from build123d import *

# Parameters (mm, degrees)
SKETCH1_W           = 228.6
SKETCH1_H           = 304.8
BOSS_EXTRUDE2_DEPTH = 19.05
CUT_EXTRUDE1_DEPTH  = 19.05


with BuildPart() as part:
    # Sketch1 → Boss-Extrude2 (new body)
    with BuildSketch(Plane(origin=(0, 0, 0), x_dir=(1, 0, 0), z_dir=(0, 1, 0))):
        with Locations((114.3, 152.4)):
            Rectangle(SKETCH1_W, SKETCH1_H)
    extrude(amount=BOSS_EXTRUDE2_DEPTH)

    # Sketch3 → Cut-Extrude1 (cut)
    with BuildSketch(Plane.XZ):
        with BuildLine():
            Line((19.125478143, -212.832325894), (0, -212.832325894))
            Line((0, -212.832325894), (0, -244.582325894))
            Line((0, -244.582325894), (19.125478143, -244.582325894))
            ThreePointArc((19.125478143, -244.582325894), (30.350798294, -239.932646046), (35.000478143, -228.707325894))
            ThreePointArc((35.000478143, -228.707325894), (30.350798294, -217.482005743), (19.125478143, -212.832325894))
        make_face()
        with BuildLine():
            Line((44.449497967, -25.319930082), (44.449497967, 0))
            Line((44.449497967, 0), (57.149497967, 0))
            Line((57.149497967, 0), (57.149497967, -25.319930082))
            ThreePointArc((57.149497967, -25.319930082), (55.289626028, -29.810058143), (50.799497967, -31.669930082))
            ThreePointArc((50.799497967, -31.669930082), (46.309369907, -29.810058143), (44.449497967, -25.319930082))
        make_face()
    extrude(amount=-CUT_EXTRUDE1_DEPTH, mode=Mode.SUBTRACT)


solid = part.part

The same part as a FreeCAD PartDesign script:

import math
import FreeCAD as App
import Part
import Sketcher
Q = App.Units.Quantity

doc = App.newDocument("Part")
body = doc.addObject("PartDesign::Body", "Body")

# Sketch on XZ plane
sketch1 = doc.addObject("Sketcher::SketchObject", "Sketch")
body.addObject(sketch1)
sketch1.AttachmentSupport = (doc.XZ_Plane, [""])
sketch1.MapMode = "FlatFace"
sketch1.addGeometry([
    Part.LineSegment(App.Vector(0, -304.8, 0), App.Vector(0, 0, 0)),
    Part.LineSegment(App.Vector(0, 0, 0), App.Vector(228.6, 0, 0)),
    Part.LineSegment(App.Vector(228.6, 0, 0), App.Vector(228.6, -304.8, 0)),
    Part.LineSegment(App.Vector(228.6, -304.8, 0), App.Vector(0, -304.8, 0)),
], False)
sketch1.addConstraint([
    Sketcher.Constraint("Coincident", 0, 2, 1, 1),
    Sketcher.Constraint("Coincident", 1, 2, 2, 1),
    Sketcher.Constraint("Coincident", 2, 2, 3, 1),
    Sketcher.Constraint("Coincident", 3, 2, 0, 1),
    Sketcher.Constraint("Vertical", 0),
    Sketcher.Constraint("Horizontal", 1),
    Sketcher.Constraint("Vertical", 2),
    Sketcher.Constraint("Horizontal", 3),
    Sketcher.Constraint("Coincident", 0, 2, -1, 1),
    Sketcher.Constraint("DistanceX", 1, 1, 1, 2, Q("9 in")),
    Sketcher.Constraint("DistanceY", 0, 1, 0, 2, Q("12 in")),
])
pad1 = doc.addObject("PartDesign::Pad", "Pad")
body.addObject(pad1)
pad1.Profile = sketch1
pad1.Length = Q("0.75 in")
pad1.Reversed = True

# Sketch on XZ plane
sketch2 = doc.addObject("Sketcher::SketchObject", "Sketch001")
body.addObject(sketch2)
sketch2.AttachmentSupport = (doc.XZ_Plane, [""])
sketch2.MapMode = "FlatFace"
sketch2.addGeometry([
    Part.LineSegment(App.Vector(19.125478, -212.832326, 0), App.Vector(0, -212.832326, 0)),  # 0
    Part.LineSegment(App.Vector(0, -212.832326, 0), App.Vector(0, -244.582326, 0)),  # 1
    Part.LineSegment(App.Vector(0, -244.582326, 0), App.Vector(19.125478, -244.582326, 0)),  # 2
    Part.ArcOfCircle(Part.Circle(App.Vector(19.125478, -228.707326, 0), App.Vector(0, 0, 1), 15.875), math.radians(-90), math.radians(0)),  # 3
    Part.ArcOfCircle(Part.Circle(App.Vector(19.125478, -228.707326, 0), App.Vector(0, 0, 1), 15.875), math.radians(0), math.radians(90)),  # 4
    Part.LineSegment(App.Vector(44.449498, 0, 0), App.Vector(44.449498, -25.31993, 0)),  # 5
    Part.ArcOfCircle(Part.Circle(App.Vector(50.799498, -25.31993, 0), App.Vector(0, 0, 1), 6.35), math.radians(180), math.radians(270)),  # 6
    Part.ArcOfCircle(Part.Circle(App.Vector(50.799498, -25.31993, 0), App.Vector(0, 0, 1), 6.35), math.radians(-90), math.radians(0)),  # 7
    Part.LineSegment(App.Vector(57.149498, -25.31993, 0), App.Vector(57.149498, 0, 0)),  # 8
    Part.LineSegment(App.Vector(57.149498, 0, 0), App.Vector(44.449498, 0, 0)),  # 9
], False)
sketch2.addConstraint([
    Sketcher.Constraint("Coincident", 0, 2, 1, 1),
    Sketcher.Constraint("Coincident", 1, 2, 2, 1),
    Sketcher.Constraint("Tangent", 2, 2, 3, 1),
    Sketcher.Constraint("Tangent", 3, 2, 4, 1),
    Sketcher.Constraint("Tangent", 4, 2, 0, 1),
    Sketcher.Constraint("Tangent", 5, 2, 6, 1),
    Sketcher.Constraint("Tangent", 6, 2, 7, 1),
    Sketcher.Constraint("Tangent", 7, 2, 8, 1),
    Sketcher.Constraint("Coincident", 8, 2, 9, 1),
    Sketcher.Constraint("Coincident", 9, 2, 5, 1),
    Sketcher.Constraint("Horizontal", 0),
    Sketcher.Constraint("Vertical", 1),
    Sketcher.Constraint("Horizontal", 2),
    Sketcher.Constraint("Vertical", 5),
    Sketcher.Constraint("Vertical", 8),
    Sketcher.Constraint("Horizontal", 9),
    Sketcher.Constraint("Equal", 3, 4),
    Sketcher.Constraint("Equal", 6, 7),
    Sketcher.Constraint("PointOnObject", 0, 2, -2),
    Sketcher.Constraint("PointOnObject", 8, 2, -1),
    Sketcher.Constraint("Horizontal", 4, 3, 3, 2),
    Sketcher.Constraint("Vertical", 7, 3, 6, 2),
    Sketcher.Constraint("Radius", 6, Q("0.25 in")),
    Sketcher.Constraint("Radius", 3, Q("0.625 in")),
    Sketcher.Constraint("DistanceX", 0, 2, 0, 1, Q("19.125478 mm")),
    Sketcher.Constraint("DistanceY", 5, 2, 5, 1, Q("25.31993 mm")),
    Sketcher.Constraint("DistanceX", 3, 3, 6, 3, Q("31.67402 mm")),
    Sketcher.Constraint("DistanceY", 3, 3, -1, 1, Q("228.707326 mm")),
])
pocket1 = doc.addObject("PartDesign::Pocket", "Pocket")
body.addObject(pocket1)
pocket1.Profile = sketch2
pocket1.Length = Q("0.75 in")

doc.recompute()
